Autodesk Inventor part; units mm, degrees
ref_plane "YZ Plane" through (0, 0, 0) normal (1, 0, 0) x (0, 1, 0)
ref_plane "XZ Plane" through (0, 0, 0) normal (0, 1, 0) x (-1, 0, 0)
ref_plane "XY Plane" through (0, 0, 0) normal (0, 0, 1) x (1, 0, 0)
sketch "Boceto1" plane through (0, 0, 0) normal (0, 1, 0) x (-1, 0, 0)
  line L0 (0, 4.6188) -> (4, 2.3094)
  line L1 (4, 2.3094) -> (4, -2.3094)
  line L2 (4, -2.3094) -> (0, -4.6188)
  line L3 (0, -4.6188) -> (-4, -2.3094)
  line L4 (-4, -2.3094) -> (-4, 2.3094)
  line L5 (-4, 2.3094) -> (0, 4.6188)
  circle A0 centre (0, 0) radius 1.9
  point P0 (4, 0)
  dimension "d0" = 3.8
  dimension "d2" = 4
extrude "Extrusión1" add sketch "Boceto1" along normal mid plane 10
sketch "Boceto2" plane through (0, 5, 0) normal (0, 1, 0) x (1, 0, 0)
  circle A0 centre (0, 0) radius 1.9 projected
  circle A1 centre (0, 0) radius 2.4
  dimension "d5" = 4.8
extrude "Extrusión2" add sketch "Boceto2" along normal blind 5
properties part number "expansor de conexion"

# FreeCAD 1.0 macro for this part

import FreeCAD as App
import Part
import Sketcher

V = App.Vector
Q = App.Units.Quantity

doc = App.newDocument("Part")
body = doc.addObject("PartDesign::Body", "Body")

sketch1 = body.newObject("Sketcher::SketchObject", "Sketch")
sketch1.AttachmentSupport = (doc.getObject("XZ_Plane"), [""])
sketch1.MapMode = "FlatFace"
sketch1.addGeometry([
    Part.LineSegment(V(-4, 2.3, 0), V(0, 4.6, 0)),
    Part.LineSegment(V(0, 4.6, 0), V(4, 2.3, 0)),
    Part.LineSegment(V(4, 2.3, 0), V(4, -2.3, 0)),
    Part.LineSegment(V(4, -2.3, 0), V(0, -4.6, 0)),
    Part.LineSegment(V(0, -4.6, 0), V(-4, -2.3, 0)),
    Part.LineSegment(V(-4, -2.3, 0), V(-4, 2.3, 0)),
    Part.Circle(V(0, 0, 0), V(0, 0, 1), 1.9),
], False)
sketch1.addConstraint([
    Sketcher.Constraint("Coincident", 0, 2, 1, 1),
    Sketcher.Constraint("Coincident", 1, 2, 2, 1),
    Sketcher.Constraint("Coincident", 2, 2, 3, 1),
    Sketcher.Constraint("Coincident", 3, 2, 4, 1),
    Sketcher.Constraint("Coincident", 4, 2, 5, 1),
    Sketcher.Constraint("Coincident", 5, 2, 0, 1),
    Sketcher.Constraint("Vertical", 2),
    Sketcher.Constraint("Vertical", 5),
    Sketcher.Constraint("Coincident", 6, 3, -1, 1),
    Sketcher.Constraint("Symmetric", 0, 2, 3, 2, -1, 1),
    Sketcher.Constraint("Symmetric", 1, 2, 4, 2, -1, 1),
    Sketcher.Constraint("PointOnObject", 0, 2, -2),
    Sketcher.Constraint("Parallel", 0, 3),
    Sketcher.Constraint("Horizontal", 2, 2, 4, 2),
    Sketcher.Constraint("Diameter", 6, Q("3.8 mm")),
    Sketcher.Constraint("DistanceX", -1, 1, 1, 2, Q("4 mm")),
    Sketcher.Constraint("Angle", 0, Q("30 deg")),
    Sketcher.Constraint("DistanceY", 2, 2, 2, 1, Q("4.6188 mm")),
])
pad1 = body.newObject("PartDesign::Pad", "Pad")
pad1.Profile = sketch1
pad1.Length = 10
pad1.Midplane = True

sketch2 = body.newObject("Sketcher::SketchObject", "Sketch001")
sketch2.AttachmentSupport = (doc.getObject("XZ_Plane"), [""])
sketch2.MapMode = "FlatFace"
sketch2.AttachmentOffset = App.Placement(V(0, 0, -5), App.Rotation())
sketch2.addGeometry([
    Part.Circle(V(0, 0, 0), V(0, 0, 1), 2.4),
    Part.Circle(V(0, 0, 0), V(0, 0, 1), 1.9),
], False)
sketch2.addConstraint([
    Sketcher.Constraint("Coincident", 0, 3, -1, 1),
    Sketcher.Constraint("Coincident", 1, 3, -1, 1),
    Sketcher.Constraint("Diameter", 0, Q("4.8 mm")),
    Sketcher.Constraint("Diameter", 1, Q("3.8 mm")),
])
pad2 = body.newObject("PartDesign::Pad", "Pad001")
pad2.Profile = sketch2
pad2.Length = 5
pad2.Reversed = True

doc.recompute()
